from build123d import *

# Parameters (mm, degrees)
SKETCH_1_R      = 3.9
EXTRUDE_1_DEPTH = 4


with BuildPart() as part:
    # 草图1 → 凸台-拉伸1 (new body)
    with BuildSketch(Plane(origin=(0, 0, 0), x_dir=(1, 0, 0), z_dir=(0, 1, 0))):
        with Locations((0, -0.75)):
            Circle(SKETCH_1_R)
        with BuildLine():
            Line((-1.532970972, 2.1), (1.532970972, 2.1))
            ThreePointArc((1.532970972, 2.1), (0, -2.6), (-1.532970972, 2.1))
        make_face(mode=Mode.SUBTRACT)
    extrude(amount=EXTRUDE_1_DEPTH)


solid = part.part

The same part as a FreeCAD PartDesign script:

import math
import FreeCAD as App
import Part
import Sketcher

V = App.Vector

doc = App.newDocument("Part")
body = doc.addObject("PartDesign::Body", "Body")

# Sketch on XZ plane
sketch1 = body.newObject("Sketcher::SketchObject", "Sketch")
sketch1.AttachmentSupport = (doc.getObject("XZ_Plane"), [""])
sketch1.MapMode = "FlatFace"
sketch1.addGeometry([
    Part.Circle(V(0, 0.8, 0), V(0, 0, 1), 3.9),
    Part.ArcOfCircle(Part.Circle(V(0, 0, 0), V(0, 0, 1), 2.6), math.radians(-54), math.radians(234)),
    Part.LineSegment(V(-1.5, -2.1, 0), V(1.5, -2.1, 0)),
], False)
sketch1.addConstraint([
    Sketcher.Constraint("Coincident", 1, 1, 2, 2),
    Sketcher.Constraint("Coincident", 2, 1, 1, 2),
    Sketcher.Constraint("Horizontal", 2),
    Sketcher.Constraint("Coincident", 1, 3, -1, 1),
    Sketcher.Constraint("PointOnObject", 0, 3, -2),
    Sketcher.Constraint("Diameter", 0, 7.8),
    Sketcher.Constraint("Radius", 1, 2.6),
    Sketcher.Constraint("DistanceY", 1, 1, -1, 1, 2.1),
    Sketcher.Constraint("DistanceY", -1, 1, 0, 3, 0.75),
])
pad1 = body.newObject("PartDesign::Pad", "Pad")
pad1.Profile = sketch1
pad1.Length = 4
pad1.Reversed = True

doc.recompute()
